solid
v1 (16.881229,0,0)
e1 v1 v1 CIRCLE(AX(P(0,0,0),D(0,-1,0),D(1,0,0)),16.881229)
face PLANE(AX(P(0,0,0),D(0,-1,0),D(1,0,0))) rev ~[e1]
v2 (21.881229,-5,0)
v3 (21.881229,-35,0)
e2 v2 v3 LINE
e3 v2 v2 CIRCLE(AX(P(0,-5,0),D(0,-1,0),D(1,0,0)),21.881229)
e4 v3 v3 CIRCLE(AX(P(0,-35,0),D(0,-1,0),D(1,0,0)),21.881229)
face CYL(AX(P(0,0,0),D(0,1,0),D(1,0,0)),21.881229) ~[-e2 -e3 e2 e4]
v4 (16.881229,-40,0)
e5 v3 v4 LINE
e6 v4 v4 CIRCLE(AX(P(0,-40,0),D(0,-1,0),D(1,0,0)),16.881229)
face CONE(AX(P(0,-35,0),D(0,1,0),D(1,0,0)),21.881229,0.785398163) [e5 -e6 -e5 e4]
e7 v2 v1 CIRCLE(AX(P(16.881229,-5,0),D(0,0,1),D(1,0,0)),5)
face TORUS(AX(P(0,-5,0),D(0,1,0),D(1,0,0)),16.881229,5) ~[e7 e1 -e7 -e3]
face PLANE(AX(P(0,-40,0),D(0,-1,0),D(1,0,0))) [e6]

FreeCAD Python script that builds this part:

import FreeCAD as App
import Part
import Sketcher

V = App.Vector
Q = App.Units.Quantity


def edges_at(feature, points):
    """Names of the edges that pass closest to the given points."""
    edges = feature.Shape.Edges
    near = lambda p: min(range(len(edges)), key=lambda i: edges[i].distToShape(Part.Vertex(*p))[0])
    return sorted({f"Edge{near(p) + 1}" for p in points})

doc = App.newDocument("Part")
body = doc.addObject("PartDesign::Body", "Body")

# Sketch on XZ plane
sketch1 = body.newObject("Sketcher::SketchObject", "Sketch")
sketch1.AttachmentSupport = (doc.getObject("XZ_Plane"), [""])
sketch1.MapMode = "FlatFace"
sketch1.addGeometry(Part.Circle(V(0, 0, 0), V(0, 0, 1), 22), False)
sketch1.addConstraint([
    Sketcher.Constraint("Coincident", 0, 3, -1, 1),
    Sketcher.Constraint("Diameter", 0, Q("43.762458 mm")),
])
pad1 = body.newObject("PartDesign::Pad", "Pad")
pad1.Profile = sketch1
pad1.Length = 40
doc.recompute()

chamfer = body.newObject("PartDesign::Chamfer", "Chamfer")
chamfer.Base = (pad1, edges_at(pad1, [(-21.881, -40, 0)]))
chamfer.Size = 5
doc.recompute()

fillet = body.newObject("PartDesign::Fillet", "Fillet")
fillet.Base = (chamfer, edges_at(chamfer, [(-21.881, 0, 0)]))
fillet.Radius = 5

doc.recompute()
